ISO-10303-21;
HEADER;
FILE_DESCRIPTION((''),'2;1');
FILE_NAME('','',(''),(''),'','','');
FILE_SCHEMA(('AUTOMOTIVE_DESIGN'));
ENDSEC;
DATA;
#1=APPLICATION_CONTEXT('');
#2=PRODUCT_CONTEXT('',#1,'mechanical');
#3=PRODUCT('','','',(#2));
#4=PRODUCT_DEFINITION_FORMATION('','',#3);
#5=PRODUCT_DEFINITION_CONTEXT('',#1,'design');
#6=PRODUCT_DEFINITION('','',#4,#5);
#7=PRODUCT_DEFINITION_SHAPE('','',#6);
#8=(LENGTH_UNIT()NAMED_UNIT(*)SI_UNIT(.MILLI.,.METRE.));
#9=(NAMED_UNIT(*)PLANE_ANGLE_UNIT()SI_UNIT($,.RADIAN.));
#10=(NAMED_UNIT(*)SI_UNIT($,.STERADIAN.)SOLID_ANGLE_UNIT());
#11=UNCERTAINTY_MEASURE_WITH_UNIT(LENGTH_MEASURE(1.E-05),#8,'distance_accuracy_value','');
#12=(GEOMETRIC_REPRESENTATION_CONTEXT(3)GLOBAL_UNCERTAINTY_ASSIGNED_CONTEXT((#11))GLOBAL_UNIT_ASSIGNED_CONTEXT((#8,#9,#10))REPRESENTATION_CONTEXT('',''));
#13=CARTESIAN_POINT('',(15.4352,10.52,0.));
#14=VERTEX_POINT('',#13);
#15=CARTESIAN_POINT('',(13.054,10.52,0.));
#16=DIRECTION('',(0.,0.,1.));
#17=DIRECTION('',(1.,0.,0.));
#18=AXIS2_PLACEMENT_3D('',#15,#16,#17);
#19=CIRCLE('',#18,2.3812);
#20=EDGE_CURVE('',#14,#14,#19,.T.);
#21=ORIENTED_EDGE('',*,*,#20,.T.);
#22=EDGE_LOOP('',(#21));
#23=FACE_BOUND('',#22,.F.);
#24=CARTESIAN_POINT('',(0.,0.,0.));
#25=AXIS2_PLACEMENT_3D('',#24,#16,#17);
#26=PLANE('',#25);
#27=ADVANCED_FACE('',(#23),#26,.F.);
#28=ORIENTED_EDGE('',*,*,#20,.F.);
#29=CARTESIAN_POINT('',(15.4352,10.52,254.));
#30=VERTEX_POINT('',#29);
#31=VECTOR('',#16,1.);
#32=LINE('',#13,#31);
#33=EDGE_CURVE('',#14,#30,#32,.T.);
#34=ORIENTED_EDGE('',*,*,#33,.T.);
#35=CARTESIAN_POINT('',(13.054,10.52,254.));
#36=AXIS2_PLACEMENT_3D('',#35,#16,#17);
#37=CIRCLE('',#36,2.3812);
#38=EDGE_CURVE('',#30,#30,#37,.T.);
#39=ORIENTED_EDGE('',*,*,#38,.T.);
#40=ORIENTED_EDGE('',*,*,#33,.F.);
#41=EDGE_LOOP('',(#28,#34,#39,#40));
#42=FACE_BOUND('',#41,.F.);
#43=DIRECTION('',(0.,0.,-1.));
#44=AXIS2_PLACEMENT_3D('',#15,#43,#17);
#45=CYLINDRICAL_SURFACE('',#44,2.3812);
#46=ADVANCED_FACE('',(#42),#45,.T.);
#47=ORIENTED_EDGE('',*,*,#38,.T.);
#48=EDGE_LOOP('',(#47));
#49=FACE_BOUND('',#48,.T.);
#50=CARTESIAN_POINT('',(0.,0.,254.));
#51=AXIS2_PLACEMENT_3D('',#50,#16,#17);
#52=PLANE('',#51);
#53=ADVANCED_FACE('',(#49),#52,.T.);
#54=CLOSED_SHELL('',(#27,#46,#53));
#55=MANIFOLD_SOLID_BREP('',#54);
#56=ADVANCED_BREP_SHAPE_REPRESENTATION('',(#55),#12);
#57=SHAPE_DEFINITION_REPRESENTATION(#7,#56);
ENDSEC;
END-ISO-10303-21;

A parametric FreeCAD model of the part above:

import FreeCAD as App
import Part
import Sketcher
Q = App.Units.Quantity

doc = App.newDocument("Part")
body = doc.addObject("PartDesign::Body", "Body")

# Sketch on XY plane
sketch1 = body.newObject("Sketcher::SketchObject", "Sketch")
sketch1.AttachmentSupport = (doc.getObject("XY_Plane"), [""])
sketch1.MapMode = "FlatFace"
sketch1.addGeometry(Part.Circle(App.Vector(13.1, 10.5, 0), App.Vector(0, 0, 1), 2.4), False)
sketch1.addConstraint([
    Sketcher.Constraint("Diameter", 0, Q("0.1875 in")),
    Sketcher.Constraint("DistanceX", -1, 1, 0, 3, 13.054),
    Sketcher.Constraint("DistanceY", -1, 1, 0, 3, 10.52),
])
pad1 = body.newObject("PartDesign::Pad", "Pad")
pad1.Profile = sketch1
pad1.Length = Q("10 in")

doc.recompute()
